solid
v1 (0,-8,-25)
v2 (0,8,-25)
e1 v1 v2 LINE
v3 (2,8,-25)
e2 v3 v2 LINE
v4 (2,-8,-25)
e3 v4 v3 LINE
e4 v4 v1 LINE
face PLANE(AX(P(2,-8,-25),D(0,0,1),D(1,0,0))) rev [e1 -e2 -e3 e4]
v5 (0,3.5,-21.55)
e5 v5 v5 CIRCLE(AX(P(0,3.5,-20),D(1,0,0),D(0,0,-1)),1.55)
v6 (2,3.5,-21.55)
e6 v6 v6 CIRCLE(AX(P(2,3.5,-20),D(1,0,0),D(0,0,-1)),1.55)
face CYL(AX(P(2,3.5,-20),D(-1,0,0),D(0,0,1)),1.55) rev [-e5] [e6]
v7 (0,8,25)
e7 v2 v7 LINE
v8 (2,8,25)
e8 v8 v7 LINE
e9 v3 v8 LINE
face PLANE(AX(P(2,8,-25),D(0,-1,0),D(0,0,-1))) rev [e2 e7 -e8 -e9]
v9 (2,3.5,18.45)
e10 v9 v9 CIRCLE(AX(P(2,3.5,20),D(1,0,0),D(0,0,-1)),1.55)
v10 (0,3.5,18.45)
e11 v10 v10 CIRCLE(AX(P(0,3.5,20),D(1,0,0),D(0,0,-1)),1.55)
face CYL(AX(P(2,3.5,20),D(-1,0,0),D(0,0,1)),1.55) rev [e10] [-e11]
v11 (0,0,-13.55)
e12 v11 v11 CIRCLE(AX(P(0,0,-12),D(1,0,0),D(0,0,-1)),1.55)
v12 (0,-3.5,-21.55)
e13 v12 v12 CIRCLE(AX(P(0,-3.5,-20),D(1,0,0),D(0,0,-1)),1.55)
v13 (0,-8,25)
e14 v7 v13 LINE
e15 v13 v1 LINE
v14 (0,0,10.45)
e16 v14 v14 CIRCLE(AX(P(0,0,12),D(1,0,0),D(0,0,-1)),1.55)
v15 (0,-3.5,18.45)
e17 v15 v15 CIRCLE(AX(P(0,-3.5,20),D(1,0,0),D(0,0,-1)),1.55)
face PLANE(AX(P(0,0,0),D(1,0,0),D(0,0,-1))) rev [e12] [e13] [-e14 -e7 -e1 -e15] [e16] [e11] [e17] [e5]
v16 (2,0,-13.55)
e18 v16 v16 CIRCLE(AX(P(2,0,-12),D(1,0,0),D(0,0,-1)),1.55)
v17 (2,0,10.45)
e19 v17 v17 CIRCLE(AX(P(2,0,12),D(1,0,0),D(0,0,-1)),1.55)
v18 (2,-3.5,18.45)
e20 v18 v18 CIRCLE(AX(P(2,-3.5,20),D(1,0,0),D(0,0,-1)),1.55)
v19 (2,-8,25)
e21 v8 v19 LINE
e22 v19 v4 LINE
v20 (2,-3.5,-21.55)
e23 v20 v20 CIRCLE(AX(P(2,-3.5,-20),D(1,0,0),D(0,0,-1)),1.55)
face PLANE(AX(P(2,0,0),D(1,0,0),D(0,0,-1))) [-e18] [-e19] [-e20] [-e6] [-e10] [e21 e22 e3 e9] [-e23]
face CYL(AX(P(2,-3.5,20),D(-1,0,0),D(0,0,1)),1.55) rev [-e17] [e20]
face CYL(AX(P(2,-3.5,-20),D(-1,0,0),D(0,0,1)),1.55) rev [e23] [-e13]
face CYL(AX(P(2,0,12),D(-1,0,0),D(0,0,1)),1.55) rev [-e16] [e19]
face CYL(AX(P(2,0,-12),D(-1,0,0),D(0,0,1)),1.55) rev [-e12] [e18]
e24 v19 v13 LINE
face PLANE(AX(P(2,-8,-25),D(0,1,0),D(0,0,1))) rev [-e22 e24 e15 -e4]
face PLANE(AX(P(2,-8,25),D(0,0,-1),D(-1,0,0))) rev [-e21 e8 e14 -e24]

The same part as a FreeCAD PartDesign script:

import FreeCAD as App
import Part
import Sketcher
Q = App.Units.Quantity

doc = App.newDocument("Part")
params = doc.addObject("Spreadsheet::Sheet", "Params")
for row, (alias, value) in enumerate([
    ("sketch1_diameter", "3.1 mm"),
    ("sketch1_width", "16 mm"),
    ("sketch1_height", "50 mm"),
    ("pad1_length", "2 mm"),
], start=1):
    params.set(f"A{row}", alias)
    params.set(f"B{row}", "=" + value)
    params.setAlias(f"B{row}", alias)

body = doc.addObject("PartDesign::Body", "Body")

sketch1 = body.newObject("Sketcher::SketchObject", "Sketch")
sketch1.AttachmentSupport = (doc.getObject("YZ_Plane"), [""])
sketch1.MapMode = "FlatFace"
sketch1.addGeometry(Part.LineSegment(App.Vector(8, 25, 0), App.Vector(-8, 25, 0)), False)
sketch1.addGeometry(Part.LineSegment(App.Vector(-8, 25, 0), App.Vector(-8, -25, 0)), False)
sketch1.addGeometry(Part.LineSegment(App.Vector(-8, -25, 0), App.Vector(8, -25, 0)), False)
sketch1.addGeometry(Part.LineSegment(App.Vector(8, -25, 0), App.Vector(8, 25, 0)), False)
sketch1.addGeometry(Part.Circle(App.Vector(-3.5, 20, 0), App.Vector(0, 0, 1), 1.6), False)
sketch1.addGeometry(Part.Circle(App.Vector(-3.5, -20, 0), App.Vector(0, 0, 1), 1.6), False)
sketch1.addGeometry(Part.Circle(App.Vector(0, 12, 0), App.Vector(0, 0, 1), 1.6), False)
sketch1.addGeometry(Part.Circle(App.Vector(3.5, 20, 0), App.Vector(0, 0, 1), 1.6), False)
sketch1.addGeometry(Part.Circle(App.Vector(0, -12, 0), App.Vector(0, 0, 1), 1.6), False)
sketch1.addGeometry(Part.Circle(App.Vector(3.5, -20, 0), App.Vector(0, 0, 1), 1.6), False)
sketch1.addConstraint(Sketcher.Constraint("Coincident", 0, 2, 1, 1))
sketch1.addConstraint(Sketcher.Constraint("Coincident", 1, 2, 2, 1))
sketch1.addConstraint(Sketcher.Constraint("Coincident", 2, 2, 3, 1))
sketch1.addConstraint(Sketcher.Constraint("Coincident", 3, 2, 0, 1))
sketch1.addConstraint(Sketcher.Constraint("Horizontal", 0))
sketch1.addConstraint(Sketcher.Constraint("Vertical", 1))
sketch1.addConstraint(Sketcher.Constraint("Horizontal", 2))
sketch1.addConstraint(Sketcher.Constraint("Vertical", 3))
sketch1.addConstraint(Sketcher.Constraint("Equal", 4, 5))
sketch1.addConstraint(Sketcher.Constraint("Equal", 5, 6))
sketch1.addConstraint(Sketcher.Constraint("Equal", 6, 7))
sketch1.addConstraint(Sketcher.Constraint("Equal", 7, 8))
sketch1.addConstraint(Sketcher.Constraint("Equal", 8, 9))
sketch1.addConstraint(Sketcher.Constraint("Symmetric", 5, 3, 7, 3, -1, 1))
sketch1.addConstraint(Sketcher.Constraint("Symmetric", 6, 3, 8, 3, -1, 1))
sketch1.addConstraint(Sketcher.Constraint("Symmetric", 4, 3, 9, 3, -1, 1))
sketch1.addConstraint(Sketcher.Constraint("Symmetric", 0, 2, 2, 2, -1, 1))
sketch1.addConstraint(Sketcher.Constraint("Symmetric", 4, 3, 7, 3, -2))
sketch1.addConstraint(Sketcher.Constraint("PointOnObject", 6, 3, -2))
sketch1.addConstraint(Sketcher.Constraint("Diameter", 4, Q("3.1 mm")))
sketch1.addConstraint(Sketcher.Constraint("DistanceX", 0, 2, 0, 1, Q("16 mm")))
sketch1.addConstraint(Sketcher.Constraint("DistanceY", 1, 2, 1, 1, Q("50 mm")))
sketch1.addConstraint(Sketcher.Constraint("DistanceY", -1, 1, 4, 3, Q("20 mm")))
sketch1.addConstraint(Sketcher.Constraint("DistanceY", -1, 1, 6, 3, Q("12 mm")))
sketch1.addConstraint(Sketcher.Constraint("DistanceX", 4, 3, 7, 3, Q("7 mm")))
sketch1.setExpression("Constraints[19]", "Params.sketch1_diameter")
sketch1.setExpression("Constraints[20]", "Params.sketch1_width")
sketch1.setExpression("Constraints[21]", "Params.sketch1_height")
pad1 = body.newObject("PartDesign::Pad", "Pad")
pad1.Profile = sketch1
pad1.setExpression("Length", "Params.pad1_length")

doc.recompute()
